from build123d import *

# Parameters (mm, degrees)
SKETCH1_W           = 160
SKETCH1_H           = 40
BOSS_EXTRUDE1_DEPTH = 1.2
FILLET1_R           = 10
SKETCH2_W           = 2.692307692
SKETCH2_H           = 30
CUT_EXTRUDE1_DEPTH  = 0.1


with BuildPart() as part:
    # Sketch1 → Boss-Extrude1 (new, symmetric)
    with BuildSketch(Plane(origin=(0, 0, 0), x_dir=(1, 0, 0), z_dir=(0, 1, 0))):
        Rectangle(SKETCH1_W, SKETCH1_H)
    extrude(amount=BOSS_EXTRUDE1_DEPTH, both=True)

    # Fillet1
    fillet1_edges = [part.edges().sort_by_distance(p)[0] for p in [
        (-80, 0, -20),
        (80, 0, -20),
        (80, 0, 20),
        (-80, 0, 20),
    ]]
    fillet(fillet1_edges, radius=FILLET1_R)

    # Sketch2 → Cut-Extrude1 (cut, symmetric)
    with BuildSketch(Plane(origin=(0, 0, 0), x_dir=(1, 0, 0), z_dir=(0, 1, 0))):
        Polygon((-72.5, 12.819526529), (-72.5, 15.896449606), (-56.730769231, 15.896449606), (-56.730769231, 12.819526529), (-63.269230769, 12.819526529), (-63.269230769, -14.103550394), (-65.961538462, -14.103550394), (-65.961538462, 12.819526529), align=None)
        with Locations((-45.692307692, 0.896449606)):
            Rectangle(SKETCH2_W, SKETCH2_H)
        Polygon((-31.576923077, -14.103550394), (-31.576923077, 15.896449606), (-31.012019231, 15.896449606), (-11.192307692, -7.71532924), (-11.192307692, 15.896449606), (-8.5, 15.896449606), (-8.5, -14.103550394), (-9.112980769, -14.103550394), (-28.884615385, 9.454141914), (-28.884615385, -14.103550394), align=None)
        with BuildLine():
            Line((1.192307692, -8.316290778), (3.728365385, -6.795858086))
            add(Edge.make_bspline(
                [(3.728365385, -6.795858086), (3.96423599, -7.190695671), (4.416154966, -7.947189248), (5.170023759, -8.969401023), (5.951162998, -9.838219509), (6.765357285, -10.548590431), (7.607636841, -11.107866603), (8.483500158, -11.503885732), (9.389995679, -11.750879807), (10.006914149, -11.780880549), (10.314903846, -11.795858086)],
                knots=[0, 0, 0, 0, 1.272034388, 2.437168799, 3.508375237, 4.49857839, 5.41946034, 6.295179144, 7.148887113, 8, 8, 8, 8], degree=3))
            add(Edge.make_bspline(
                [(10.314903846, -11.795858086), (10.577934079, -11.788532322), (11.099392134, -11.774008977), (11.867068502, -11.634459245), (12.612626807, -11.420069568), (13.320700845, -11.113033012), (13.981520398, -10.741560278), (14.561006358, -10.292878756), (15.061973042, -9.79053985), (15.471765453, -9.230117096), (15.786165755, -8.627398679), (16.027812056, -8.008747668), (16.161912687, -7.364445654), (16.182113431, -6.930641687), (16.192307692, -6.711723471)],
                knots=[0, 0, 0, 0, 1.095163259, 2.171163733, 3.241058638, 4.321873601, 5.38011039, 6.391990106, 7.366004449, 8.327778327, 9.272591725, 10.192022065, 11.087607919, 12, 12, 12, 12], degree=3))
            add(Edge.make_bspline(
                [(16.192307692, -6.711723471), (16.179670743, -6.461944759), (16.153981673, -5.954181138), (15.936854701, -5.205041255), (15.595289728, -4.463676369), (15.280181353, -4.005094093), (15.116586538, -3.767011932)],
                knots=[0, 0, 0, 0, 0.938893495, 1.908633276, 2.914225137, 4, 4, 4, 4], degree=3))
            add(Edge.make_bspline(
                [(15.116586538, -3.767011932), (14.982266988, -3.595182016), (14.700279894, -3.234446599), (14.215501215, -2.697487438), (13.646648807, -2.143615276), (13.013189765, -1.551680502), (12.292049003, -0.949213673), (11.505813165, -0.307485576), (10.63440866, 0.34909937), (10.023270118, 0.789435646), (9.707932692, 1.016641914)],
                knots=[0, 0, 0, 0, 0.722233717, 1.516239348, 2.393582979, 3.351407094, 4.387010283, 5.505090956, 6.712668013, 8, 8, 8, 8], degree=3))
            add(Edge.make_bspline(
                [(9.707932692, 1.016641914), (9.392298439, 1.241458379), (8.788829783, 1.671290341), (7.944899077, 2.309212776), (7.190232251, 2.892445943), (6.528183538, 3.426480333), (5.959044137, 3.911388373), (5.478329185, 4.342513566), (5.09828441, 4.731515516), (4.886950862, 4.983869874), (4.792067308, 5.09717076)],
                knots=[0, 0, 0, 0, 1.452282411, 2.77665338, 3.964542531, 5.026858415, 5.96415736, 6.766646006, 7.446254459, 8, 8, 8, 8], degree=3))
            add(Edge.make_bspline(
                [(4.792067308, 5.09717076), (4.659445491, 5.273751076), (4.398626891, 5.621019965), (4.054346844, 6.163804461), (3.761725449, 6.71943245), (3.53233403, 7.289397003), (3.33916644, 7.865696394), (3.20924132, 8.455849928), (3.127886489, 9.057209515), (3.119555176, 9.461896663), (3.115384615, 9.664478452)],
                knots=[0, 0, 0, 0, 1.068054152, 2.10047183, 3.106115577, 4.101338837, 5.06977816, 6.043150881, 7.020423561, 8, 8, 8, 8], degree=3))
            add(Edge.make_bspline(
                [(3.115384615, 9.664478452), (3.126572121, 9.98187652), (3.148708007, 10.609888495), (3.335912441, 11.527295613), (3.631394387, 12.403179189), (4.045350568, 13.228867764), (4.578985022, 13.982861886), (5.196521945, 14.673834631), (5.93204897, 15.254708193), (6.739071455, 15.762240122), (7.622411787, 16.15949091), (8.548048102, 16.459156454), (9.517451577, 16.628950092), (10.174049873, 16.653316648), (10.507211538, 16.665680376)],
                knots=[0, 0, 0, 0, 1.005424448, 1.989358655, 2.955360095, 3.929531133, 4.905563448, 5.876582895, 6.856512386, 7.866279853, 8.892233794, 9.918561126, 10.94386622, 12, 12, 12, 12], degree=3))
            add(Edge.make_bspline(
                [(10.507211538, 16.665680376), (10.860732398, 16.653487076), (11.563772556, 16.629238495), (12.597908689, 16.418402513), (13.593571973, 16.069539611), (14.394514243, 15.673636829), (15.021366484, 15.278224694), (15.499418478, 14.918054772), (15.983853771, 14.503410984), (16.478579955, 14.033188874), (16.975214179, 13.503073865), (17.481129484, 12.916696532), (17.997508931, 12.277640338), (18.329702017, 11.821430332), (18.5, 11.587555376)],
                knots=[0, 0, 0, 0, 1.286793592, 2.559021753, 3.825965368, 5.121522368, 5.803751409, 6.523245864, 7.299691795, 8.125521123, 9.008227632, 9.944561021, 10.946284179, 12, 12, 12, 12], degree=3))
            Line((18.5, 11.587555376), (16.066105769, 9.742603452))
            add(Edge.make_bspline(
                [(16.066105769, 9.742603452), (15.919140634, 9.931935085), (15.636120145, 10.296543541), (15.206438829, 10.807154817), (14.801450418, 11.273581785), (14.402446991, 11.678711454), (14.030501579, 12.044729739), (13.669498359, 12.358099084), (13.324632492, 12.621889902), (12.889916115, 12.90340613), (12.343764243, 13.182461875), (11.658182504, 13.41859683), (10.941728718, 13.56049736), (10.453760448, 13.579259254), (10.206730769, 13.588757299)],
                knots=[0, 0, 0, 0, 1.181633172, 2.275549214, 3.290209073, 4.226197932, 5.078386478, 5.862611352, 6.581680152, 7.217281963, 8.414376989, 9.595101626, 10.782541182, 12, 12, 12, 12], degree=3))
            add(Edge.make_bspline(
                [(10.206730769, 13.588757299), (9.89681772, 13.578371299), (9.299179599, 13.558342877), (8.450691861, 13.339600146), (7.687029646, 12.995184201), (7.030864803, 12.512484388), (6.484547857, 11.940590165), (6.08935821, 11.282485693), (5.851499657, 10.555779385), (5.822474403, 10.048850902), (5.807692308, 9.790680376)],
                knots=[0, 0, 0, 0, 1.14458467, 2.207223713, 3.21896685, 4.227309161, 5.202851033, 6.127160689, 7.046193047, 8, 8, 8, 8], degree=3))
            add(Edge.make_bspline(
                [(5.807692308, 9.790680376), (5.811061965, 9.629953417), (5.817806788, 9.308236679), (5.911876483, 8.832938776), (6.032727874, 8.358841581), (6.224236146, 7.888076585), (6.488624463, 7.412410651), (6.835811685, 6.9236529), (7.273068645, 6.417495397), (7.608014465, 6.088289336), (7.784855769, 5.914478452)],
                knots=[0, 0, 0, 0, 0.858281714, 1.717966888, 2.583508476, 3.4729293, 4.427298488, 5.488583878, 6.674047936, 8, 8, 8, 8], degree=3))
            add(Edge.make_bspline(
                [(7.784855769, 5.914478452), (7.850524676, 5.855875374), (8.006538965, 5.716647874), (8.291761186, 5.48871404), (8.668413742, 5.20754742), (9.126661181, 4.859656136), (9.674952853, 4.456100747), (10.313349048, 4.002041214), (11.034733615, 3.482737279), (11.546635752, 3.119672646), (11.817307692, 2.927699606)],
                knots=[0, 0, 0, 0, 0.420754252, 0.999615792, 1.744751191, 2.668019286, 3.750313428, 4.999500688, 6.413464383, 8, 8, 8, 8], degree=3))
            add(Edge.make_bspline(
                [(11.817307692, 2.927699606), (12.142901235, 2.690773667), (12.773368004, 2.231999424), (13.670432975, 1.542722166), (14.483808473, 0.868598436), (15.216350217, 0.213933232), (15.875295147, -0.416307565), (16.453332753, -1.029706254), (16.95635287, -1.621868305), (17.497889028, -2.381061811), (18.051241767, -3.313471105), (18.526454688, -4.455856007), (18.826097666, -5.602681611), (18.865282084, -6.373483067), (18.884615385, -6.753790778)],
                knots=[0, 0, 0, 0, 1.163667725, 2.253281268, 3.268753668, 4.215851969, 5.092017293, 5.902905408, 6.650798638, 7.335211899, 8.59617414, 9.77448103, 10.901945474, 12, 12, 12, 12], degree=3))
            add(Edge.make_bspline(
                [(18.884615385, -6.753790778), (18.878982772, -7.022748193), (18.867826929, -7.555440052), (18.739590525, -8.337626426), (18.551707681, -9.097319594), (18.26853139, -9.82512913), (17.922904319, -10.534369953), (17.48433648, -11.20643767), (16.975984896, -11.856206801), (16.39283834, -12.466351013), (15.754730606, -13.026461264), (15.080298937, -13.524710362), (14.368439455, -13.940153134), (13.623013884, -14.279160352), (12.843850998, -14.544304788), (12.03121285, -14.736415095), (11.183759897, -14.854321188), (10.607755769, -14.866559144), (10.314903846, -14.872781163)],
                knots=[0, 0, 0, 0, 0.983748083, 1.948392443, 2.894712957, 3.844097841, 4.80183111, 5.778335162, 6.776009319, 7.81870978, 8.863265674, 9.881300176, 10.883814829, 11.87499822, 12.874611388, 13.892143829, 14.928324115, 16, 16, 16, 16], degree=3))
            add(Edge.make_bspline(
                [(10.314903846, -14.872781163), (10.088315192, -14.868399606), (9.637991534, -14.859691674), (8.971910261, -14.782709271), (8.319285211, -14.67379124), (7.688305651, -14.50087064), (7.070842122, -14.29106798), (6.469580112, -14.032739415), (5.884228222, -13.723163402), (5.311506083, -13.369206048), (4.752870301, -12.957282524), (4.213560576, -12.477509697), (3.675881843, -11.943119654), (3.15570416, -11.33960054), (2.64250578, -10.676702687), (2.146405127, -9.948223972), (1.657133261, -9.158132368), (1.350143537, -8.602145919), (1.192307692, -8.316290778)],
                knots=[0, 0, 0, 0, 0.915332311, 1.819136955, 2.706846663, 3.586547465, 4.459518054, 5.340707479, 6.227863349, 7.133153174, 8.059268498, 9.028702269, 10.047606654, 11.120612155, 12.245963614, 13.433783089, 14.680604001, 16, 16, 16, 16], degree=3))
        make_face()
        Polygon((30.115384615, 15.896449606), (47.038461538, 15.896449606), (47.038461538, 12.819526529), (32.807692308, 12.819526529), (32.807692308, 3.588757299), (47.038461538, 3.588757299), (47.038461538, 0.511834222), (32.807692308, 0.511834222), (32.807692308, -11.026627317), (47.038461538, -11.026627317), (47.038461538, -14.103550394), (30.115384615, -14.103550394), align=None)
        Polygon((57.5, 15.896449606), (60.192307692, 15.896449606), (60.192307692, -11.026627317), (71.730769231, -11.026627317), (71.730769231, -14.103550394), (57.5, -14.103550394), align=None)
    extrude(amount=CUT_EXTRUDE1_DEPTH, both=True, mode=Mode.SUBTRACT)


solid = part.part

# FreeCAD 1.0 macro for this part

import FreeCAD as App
import Part
import Sketcher
Q = App.Units.Quantity


def edges_at(feature, points):
    """Names of the edges that pass closest to the given points."""
    edges = feature.Shape.Edges
    near = lambda p: min(range(len(edges)), key=lambda i: edges[i].distToShape(Part.Vertex(*p))[0])
    return sorted({f"Edge{near(p) + 1}" for p in points})


def add_polygon(sketch, points):
    """Adds a closed chain of lines whose ends are joined by coincident constraints."""
    first, n = sketch.GeometryCount, len(points)
    for a, b in zip(points, points[1:] + points[:1]):
        sketch.addGeometry(Part.LineSegment(App.Vector(*a, 0), App.Vector(*b, 0)), False)
    for i in range(n):
        sketch.addConstraint(Sketcher.Constraint("Coincident", first + i, 2, first + (i + 1) % n, 1))

doc = App.newDocument("Part")
body = doc.addObject("PartDesign::Body", "Body")

sketch1 = body.newObject("Sketcher::SketchObject", "Sketch")
sketch1.AttachmentSupport = (doc.getObject("XZ_Plane"), [""])
sketch1.MapMode = "FlatFace"
add_polygon(sketch1, [(-80, -20), (-80, 20), (80, 20), (80, -20)])
sketch1.addConstraint(Sketcher.Constraint("Vertical", 0))
sketch1.addConstraint(Sketcher.Constraint("Horizontal", 1))
sketch1.addConstraint(Sketcher.Constraint("Vertical", 2))
sketch1.addConstraint(Sketcher.Constraint("Horizontal", 3))
sketch1.addConstraint(Sketcher.Constraint("Symmetric", 0, 2, 2, 2, -1, 1))
sketch1.addConstraint(Sketcher.Constraint("DistanceX", 1, 1, 1, 2, Q("160 mm")))
sketch1.addConstraint(Sketcher.Constraint("DistanceY", 0, 1, 0, 2, Q("40 mm")))
pad1 = body.newObject("PartDesign::Pad", "Pad")
pad1.Profile = sketch1
pad1.Length = 2.4
pad1.Midplane = True
doc.recompute()

fillet = body.newObject("PartDesign::Fillet", "Fillet")
fillet.Base = (pad1, edges_at(pad1, [
    (-80, 0, -20),
    (80, 0, -20),
    (80, 0, 20),
    (-80, 0, 20),
]))
fillet.Radius = 10

sketch2 = body.newObject("Sketcher::SketchObject", "Sketch001")
sketch2.AttachmentSupport = (doc.getObject("XZ_Plane"), [""])
sketch2.MapMode = "FlatFace"
add_polygon(sketch2, [(-72.5, -15.89645), (-72.5, -12.819527), (-65.961538, -12.819527), (-65.961538, 14.10355), (-63.269231, 14.10355), (-63.269231, -12.819527), (-56.730769, -12.819527), (-56.730769, -15.89645)])
add_polygon(sketch2, [(-47.038462, -15.89645), (-47.038462, 14.10355), (-44.346154, 14.10355), (-44.346154, -15.89645)])
add_polygon(sketch2, [(-31.576923, -15.89645), (-31.576923, 14.10355), (-28.884615, 14.10355), (-28.884615, -9.454142), (-9.112981, 14.10355), (-8.5, 14.10355), (-8.5, -15.89645), (-11.192308, -15.89645), (-11.192308, 7.715329), (-31.012019, -15.89645)])
sketch2.addGeometry(Part.LineSegment(App.Vector(3.728365, 6.795858, 0), App.Vector(1.192308, 8.316291, 0)), False)
sketch2.addGeometry(Part.BSplineCurve([App.Vector(10.314904, 14.872781, 0), App.Vector(10.088315, 14.8684, 0), App.Vector(9.637992, 14.859692, 0), App.Vector(8.97191, 14.782709, 0), App.Vector(8.319285, 14.673791, 0), App.Vector(7.688306, 14.500871, 0), App.Vector(7.070842, 14.291068, 0), App.Vector(6.46958, 14.032739, 0), App.Vector(5.884228, 13.723163, 0), App.Vector(5.311506, 13.369206, 0), App.Vector(4.75287, 12.957283, 0), App.Vector(4.213561, 12.47751, 0), App.Vector(3.675882, 11.94312, 0), App.Vector(3.155704, 11.339601, 0), App.Vector(2.642506, 10.676703, 0), App.Vector(2.146405, 9.948224, 0), App.Vector(1.657133, 9.158132, 0), App.Vector(1.350144, 8.602146, 0), App.Vector(1.192308, 8.316291, 0)], [4, 1, 1, 1, 1, 1, 1, 1, 1, 1, 1, 1, 1, 1, 1, 1, 4], [0, 0.915332311, 1.819136955, 2.706846663, 3.586547465, 4.459518054, 5.340707479, 6.227863349, 7.133153174, 8.059268498, 9.028702269, 10.047606654, 11.120612155, 12.245963614, 13.433783089, 14.680604001, 16], False, 3, [1, 1, 1, 1, 1, 1, 1, 1, 1, 1, 1, 1, 1, 1, 1, 1, 1, 1, 1], False), False)
sketch2.addGeometry(Part.BSplineCurve([App.Vector(18.884615, 6.753791, 0), App.Vector(18.878983, 7.022748, 0), App.Vector(18.867827, 7.55544, 0), App.Vector(18.739591, 8.337626, 0), App.Vector(18.551708, 9.09732, 0), App.Vector(18.268531, 9.825129, 0), App.Vector(17.922904, 10.53437, 0), App.Vector(17.484336, 11.206438, 0), App.Vector(16.975985, 11.856207, 0), App.Vector(16.392838, 12.466351, 0), App.Vector(15.754731, 13.026461, 0), App.Vector(15.080299, 13.52471, 0), App.Vector(14.368439, 13.940153, 0), App.Vector(13.623014, 14.27916, 0), App.Vector(12.843851, 14.544305, 0), App.Vector(12.031213, 14.736415, 0), App.Vector(11.18376, 14.854321, 0), App.Vector(10.607756, 14.866559, 0), App.Vector(10.314904, 14.872781, 0)], [4, 1, 1, 1, 1, 1, 1, 1, 1, 1, 1, 1, 1, 1, 1, 1, 4], [0, 0.983748083, 1.948392443, 2.894712957, 3.844097841, 4.80183111, 5.778335162, 6.776009319, 7.81870978, 8.863265674, 9.881300176, 10.883814829, 11.87499822, 12.874611388, 13.892143829, 14.928324115, 16], False, 3, [1, 1, 1, 1, 1, 1, 1, 1, 1, 1, 1, 1, 1, 1, 1, 1, 1, 1, 1], False), False)
sketch2.addGeometry(Part.BSplineCurve([App.Vector(11.817308, -2.9277, 0), App.Vector(12.142901, -2.690774, 0), App.Vector(12.773368, -2.231999, 0), App.Vector(13.670433, -1.542722, 0), App.Vector(14.483808, -0.868598, 0), App.Vector(15.21635, -0.213933, 0), App.Vector(15.875295, 0.416308, 0), App.Vector(16.453333, 1.029706, 0), App.Vector(16.956353, 1.621868, 0), App.Vector(17.497889, 2.381062, 0), App.Vector(18.051242, 3.313471, 0), App.Vector(18.526455, 4.455856, 0), App.Vector(18.826098, 5.602682, 0), App.Vector(18.865282, 6.373483, 0), App.Vector(18.884615, 6.753791, 0)], [4, 1, 1, 1, 1, 1, 1, 1, 1, 1, 1, 1, 4], [0, 1.163667725, 2.253281268, 3.268753668, 4.215851969, 5.092017293, 5.902905408, 6.650798638, 7.335211899, 8.59617414, 9.77448103, 10.901945474, 12], False, 3, [1, 1, 1, 1, 1, 1, 1, 1, 1, 1, 1, 1, 1, 1, 1], False), False)
sketch2.addGeometry(Part.BSplineCurve([App.Vector(7.784856, -5.914478, 0), App.Vector(7.850525, -5.855875, 0), App.Vector(8.006539, -5.716648, 0), App.Vector(8.291761, -5.488714, 0), App.Vector(8.668414, -5.207547, 0), App.Vector(9.126661, -4.859656, 0), App.Vector(9.674953, -4.456101, 0), App.Vector(10.313349, -4.002041, 0), App.Vector(11.034734, -3.482737, 0), App.Vector(11.546636, -3.119673, 0), App.Vector(11.817308, -2.9277, 0)], [4, 1, 1, 1, 1, 1, 1, 1, 4], [0, 0.420754252, 0.999615792, 1.744751191, 2.668019286, 3.750313428, 4.999500688, 6.413464383, 8], False, 3, [1, 1, 1, 1, 1, 1, 1, 1, 1, 1, 1], False), False)
sketch2.addGeometry(Part.BSplineCurve([App.Vector(5.807692, -9.79068, 0), App.Vector(5.811062, -9.629953, 0), App.Vector(5.817807, -9.308237, 0), App.Vector(5.911876, -8.832939, 0), App.Vector(6.032728, -8.358842, 0), App.Vector(6.224236, -7.888077, 0), App.Vector(6.488624, -7.412411, 0), App.Vector(6.835812, -6.923653, 0), App.Vector(7.273069, -6.417495, 0), App.Vector(7.608014, -6.088289, 0), App.Vector(7.784856, -5.914478, 0)], [4, 1, 1, 1, 1, 1, 1, 1, 4], [0, 0.858281714, 1.717966888, 2.583508476, 3.4729293, 4.427298488, 5.488583878, 6.674047936, 8], False, 3, [1, 1, 1, 1, 1, 1, 1, 1, 1, 1, 1], False), False)
sketch2.addGeometry(Part.BSplineCurve([App.Vector(10.206731, -13.588757, 0), App.Vector(9.896818, -13.578371, 0), App.Vector(9.29918, -13.558343, 0), App.Vector(8.450692, -13.3396, 0), App.Vector(7.68703, -12.995184, 0), App.Vector(7.030865, -12.512484, 0), App.Vector(6.484548, -11.94059, 0), App.Vector(6.089358, -11.282486, 0), App.Vector(5.8515, -10.555779, 0), App.Vector(5.822474, -10.048851, 0), App.Vector(5.807692, -9.79068, 0)], [4, 1, 1, 1, 1, 1, 1, 1, 4], [0, 1.14458467, 2.207223713, 3.21896685, 4.227309161, 5.202851033, 6.127160689, 7.046193047, 8], False, 3, [1, 1, 1, 1, 1, 1, 1, 1, 1, 1, 1], False), False)
sketch2.addGeometry(Part.BSplineCurve([App.Vector(16.066106, -9.742603, 0), App.Vector(15.919141, -9.931935, 0), App.Vector(15.63612, -10.296544, 0), App.Vector(15.206439, -10.807155, 0), App.Vector(14.80145, -11.273582, 0), App.Vector(14.402447, -11.678711, 0), App.Vector(14.030502, -12.04473, 0), App.Vector(13.669498, -12.358099, 0), App.Vector(13.324632, -12.62189, 0), App.Vector(12.889916, -12.903406, 0), App.Vector(12.343764, -13.182462, 0), App.Vector(11.658183, -13.418597, 0), App.Vector(10.941729, -13.560497, 0), App.Vector(10.45376, -13.579259, 0), App.Vector(10.206731, -13.588757, 0)], [4, 1, 1, 1, 1, 1, 1, 1, 1, 1, 1, 1, 4], [0, 1.181633172, 2.275549214, 3.290209073, 4.226197932, 5.078386478, 5.862611352, 6.581680152, 7.217281963, 8.414376989, 9.595101626, 10.782541182, 12], False, 3, [1, 1, 1, 1, 1, 1, 1, 1, 1, 1, 1, 1, 1, 1, 1], False), False)
sketch2.addGeometry(Part.LineSegment(App.Vector(16.066106, -9.742603, 0), App.Vector(18.5, -11.587555, 0)), False)
sketch2.addGeometry(Part.BSplineCurve([App.Vector(10.507212, -16.66568, 0), App.Vector(10.860732, -16.653487, 0), App.Vector(11.563773, -16.629238, 0), App.Vector(12.597909, -16.418403, 0), App.Vector(13.593572, -16.06954, 0), App.Vector(14.394514, -15.673637, 0), App.Vector(15.021366, -15.278225, 0), App.Vector(15.499418, -14.918055, 0), App.Vector(15.983854, -14.503411, 0), App.Vector(16.47858, -14.033189, 0), App.Vector(16.975214, -13.503074, 0), App.Vector(17.481129, -12.916697, 0), App.Vector(17.997509, -12.27764, 0), App.Vector(18.329702, -11.82143, 0), App.Vector(18.5, -11.587555, 0)], [4, 1, 1, 1, 1, 1, 1, 1, 1, 1, 1, 1, 4], [0, 1.286793592, 2.559021753, 3.825965368, 5.121522368, 5.803751409, 6.523245864, 7.299691795, 8.125521123, 9.008227632, 9.944561021, 10.946284179, 12], False, 3, [1, 1, 1, 1, 1, 1, 1, 1, 1, 1, 1, 1, 1, 1, 1], False), False)
sketch2.addGeometry(Part.BSplineCurve([App.Vector(3.115385, -9.664478, 0), App.Vector(3.126572, -9.981877, 0), App.Vector(3.148708, -10.609888, 0), App.Vector(3.335912, -11.527296, 0), App.Vector(3.631394, -12.403179, 0), App.Vector(4.045351, -13.228868, 0), App.Vector(4.578985, -13.982862, 0), App.Vector(5.196522, -14.673835, 0), App.Vector(5.932049, -15.254708, 0), App.Vector(6.739071, -15.76224, 0), App.Vector(7.622412, -16.159491, 0), App.Vector(8.548048, -16.459156, 0), App.Vector(9.517452, -16.62895, 0), App.Vector(10.17405, -16.653317, 0), App.Vector(10.507212, -16.66568, 0)], [4, 1, 1, 1, 1, 1, 1, 1, 1, 1, 1, 1, 4], [0, 1.005424448, 1.989358655, 2.955360095, 3.929531133, 4.905563448, 5.876582895, 6.856512386, 7.866279853, 8.892233794, 9.918561126, 10.94386622, 12], False, 3, [1, 1, 1, 1, 1, 1, 1, 1, 1, 1, 1, 1, 1, 1, 1], False), False)
sketch2.addGeometry(Part.BSplineCurve([App.Vector(4.792067, -5.097171, 0), App.Vector(4.659445, -5.273751, 0), App.Vector(4.398627, -5.62102, 0), App.Vector(4.054347, -6.163804, 0), App.Vector(3.761725, -6.719432, 0), App.Vector(3.532334, -7.289397, 0), App.Vector(3.339166, -7.865696, 0), App.Vector(3.209241, -8.45585, 0), App.Vector(3.127886, -9.05721, 0), App.Vector(3.119555, -9.461897, 0), App.Vector(3.115385, -9.664478, 0)], [4, 1, 1, 1, 1, 1, 1, 1, 4], [0, 1.068054152, 2.10047183, 3.106115577, 4.101338837, 5.06977816, 6.043150881, 7.020423561, 8], False, 3, [1, 1, 1, 1, 1, 1, 1, 1, 1, 1, 1], False), False)
sketch2.addGeometry(Part.BSplineCurve([App.Vector(9.707933, -1.016642, 0), App.Vector(9.392298, -1.241458, 0), App.Vector(8.78883, -1.67129, 0), App.Vector(7.944899, -2.309213, 0), App.Vector(7.190232, -2.892446, 0), App.Vector(6.528184, -3.42648, 0), App.Vector(5.959044, -3.911388, 0), App.Vector(5.478329, -4.342514, 0), App.Vector(5.098284, -4.731516, 0), App.Vector(4.886951, -4.98387, 0), App.Vector(4.792067, -5.097171, 0)], [4, 1, 1, 1, 1, 1, 1, 1, 4], [0, 1.452282411, 2.77665338, 3.964542531, 5.026858415, 5.96415736, 6.766646006, 7.446254459, 8], False, 3, [1, 1, 1, 1, 1, 1, 1, 1, 1, 1, 1], False), False)
sketch2.addGeometry(Part.BSplineCurve([App.Vector(15.116587, 3.767012, 0), App.Vector(14.982267, 3.595182, 0), App.Vector(14.70028, 3.234447, 0), App.Vector(14.215501, 2.697487, 0), App.Vector(13.646649, 2.143615, 0), App.Vector(13.01319, 1.551681, 0), App.Vector(12.292049, 0.949214, 0), App.Vector(11.505813, 0.307486, 0), App.Vector(10.634409, -0.349099, 0), App.Vector(10.02327, -0.789436, 0), App.Vector(9.707933, -1.016642, 0)], [4, 1, 1, 1, 1, 1, 1, 1, 4], [0, 0.722233717, 1.516239348, 2.393582979, 3.351407094, 4.387010283, 5.505090956, 6.712668013, 8], False, 3, [1, 1, 1, 1, 1, 1, 1, 1, 1, 1, 1], False), False)
sketch2.addGeometry(Part.BSplineCurve([App.Vector(16.192308, 6.711723, 0), App.Vector(16.179671, 6.461945, 0), App.Vector(16.153982, 5.954181, 0), App.Vector(15.936855, 5.205041, 0), App.Vector(15.59529, 4.463676, 0), App.Vector(15.280181, 4.005094, 0), App.Vector(15.116587, 3.767012, 0)], [4, 1, 1, 1, 4], [0, 0.938893495, 1.908633276, 2.914225137, 4], False, 3, [1, 1, 1, 1, 1, 1, 1], False), False)
sketch2.addGeometry(Part.BSplineCurve([App.Vector(10.314904, 11.795858, 0), App.Vector(10.577934, 11.788532, 0), App.Vector(11.099392, 11.774009, 0), App.Vector(11.867069, 11.634459, 0), App.Vector(12.612627, 11.42007, 0), App.Vector(13.320701, 11.113033, 0), App.Vector(13.98152, 10.74156, 0), App.Vector(14.561006, 10.292879, 0), App.Vector(15.061973, 9.79054, 0), App.Vector(15.471765, 9.230117, 0), App.Vector(15.786166, 8.627399, 0), App.Vector(16.027812, 8.008748, 0), App.Vector(16.161913, 7.364446, 0), App.Vector(16.182113, 6.930642, 0), App.Vector(16.192308, 6.711723, 0)], [4, 1, 1, 1, 1, 1, 1, 1, 1, 1, 1, 1, 4], [0, 1.095163259, 2.171163733, 3.241058638, 4.321873601, 5.38011039, 6.391990106, 7.366004449, 8.327778327, 9.272591725, 10.192022065, 11.087607919, 12], False, 3, [1, 1, 1, 1, 1, 1, 1, 1, 1, 1, 1, 1, 1, 1, 1], False), False)
sketch2.addGeometry(Part.BSplineCurve([App.Vector(3.728365, 6.795858, 0), App.Vector(3.964236, 7.190696, 0), App.Vector(4.416155, 7.947189, 0), App.Vector(5.170024, 8.969401, 0), App.Vector(5.951163, 9.83822, 0), App.Vector(6.765357, 10.54859, 0), App.Vector(7.607637, 11.107867, 0), App.Vector(8.4835, 11.503886, 0), App.Vector(9.389996, 11.75088, 0), App.Vector(10.006914, 11.780881, 0), App.Vector(10.314904, 11.795858, 0)], [4, 1, 1, 1, 1, 1, 1, 1, 4], [0, 1.272034388, 2.437168799, 3.508375237, 4.49857839, 5.41946034, 6.295179144, 7.148887113, 8], False, 3, [1, 1, 1, 1, 1, 1, 1, 1, 1, 1, 1], False), False)
add_polygon(sketch2, [(47.038462, -15.89645), (30.115385, -15.89645), (30.115385, 14.10355), (47.038462, 14.10355), (47.038462, 11.026627), (32.807692, 11.026627), (32.807692, -0.511834), (47.038462, -0.511834), (47.038462, -3.588757), (32.807692, -3.588757), (32.807692, -12.819527), (47.038462, -12.819527)])
add_polygon(sketch2, [(60.192308, -15.89645), (57.5, -15.89645), (57.5, 14.10355), (71.730769, 14.10355), (71.730769, 11.026627), (60.192308, 11.026627)])
sketch2.addConstraint(Sketcher.Constraint("Block", 23))
sketch2.addConstraint(Sketcher.Constraint("Block", 24))
sketch2.addConstraint(Sketcher.Constraint("Block", 25))
sketch2.addConstraint(Sketcher.Constraint("Block", 26))
sketch2.addConstraint(Sketcher.Constraint("Block", 27))
sketch2.addConstraint(Sketcher.Constraint("Block", 28))
sketch2.addConstraint(Sketcher.Constraint("Block", 29))
sketch2.addConstraint(Sketcher.Constraint("Block", 31))
sketch2.addConstraint(Sketcher.Constraint("Block", 32))
sketch2.addConstraint(Sketcher.Constraint("Block", 33))
sketch2.addConstraint(Sketcher.Constraint("Block", 34))
sketch2.addConstraint(Sketcher.Constraint("Block", 35))
sketch2.addConstraint(Sketcher.Constraint("Block", 36))
sketch2.addConstraint(Sketcher.Constraint("Block", 37))
sketch2.addConstraint(Sketcher.Constraint("Block", 38))
sketch2.addConstraint(Sketcher.Constraint("Coincident", 22, 2, 23, 2))
sketch2.addConstraint(Sketcher.Constraint("Coincident", 29, 1, 30, 1))
sketch2.addConstraint(Sketcher.Constraint("Coincident", 30, 2, 31, 2))
sketch2.addConstraint(Sketcher.Constraint("Coincident", 38, 1, 22, 1))
sketch2.addConstraint(Sketcher.Constraint("Vertical", 0))
sketch2.addConstraint(Sketcher.Constraint("Horizontal", 1))
sketch2.addConstraint(Sketcher.Constraint("Vertical", 2))
sketch2.addConstraint(Sketcher.Constraint("Horizontal", 3))
sketch2.addConstraint(Sketcher.Constraint("Vertical", 4))
sketch2.addConstraint(Sketcher.Constraint("Horizontal", 5))
sketch2.addConstraint(Sketcher.Constraint("Vertical", 6))
sketch2.addConstraint(Sketcher.Constraint("Horizontal", 7))
sketch2.addConstraint(Sketcher.Constraint("Vertical", 8))
sketch2.addConstraint(Sketcher.Constraint("Horizontal", 9))
sketch2.addConstraint(Sketcher.Constraint("Vertical", 10))
sketch2.addConstraint(Sketcher.Constraint("Horizontal", 11))
sketch2.addConstraint(Sketcher.Constraint("Vertical", 12))
sketch2.addConstraint(Sketcher.Constraint("Horizontal", 13))
sketch2.addConstraint(Sketcher.Constraint("Vertical", 14))
sketch2.addConstraint(Sketcher.Constraint("Horizontal", 16))
sketch2.addConstraint(Sketcher.Constraint("Vertical", 17))
sketch2.addConstraint(Sketcher.Constraint("Horizontal", 18))
sketch2.addConstraint(Sketcher.Constraint("Vertical", 19))
sketch2.addConstraint(Sketcher.Constraint("Horizontal", 21))
sketch2.addConstraint(Sketcher.Constraint("Horizontal", 39))
sketch2.addConstraint(Sketcher.Constraint("Vertical", 40))
sketch2.addConstraint(Sketcher.Constraint("Horizontal", 41))
sketch2.addConstraint(Sketcher.Constraint("Vertical", 42))
sketch2.addConstraint(Sketcher.Constraint("Horizontal", 43))
sketch2.addConstraint(Sketcher.Constraint("Vertical", 44))
sketch2.addConstraint(Sketcher.Constraint("Horizontal", 45))
sketch2.addConstraint(Sketcher.Constraint("Vertical", 46))
sketch2.addConstraint(Sketcher.Constraint("Horizontal", 47))
sketch2.addConstraint(Sketcher.Constraint("Vertical", 48))
sketch2.addConstraint(Sketcher.Constraint("Horizontal", 49))
sketch2.addConstraint(Sketcher.Constraint("Vertical", 50))
sketch2.addConstraint(Sketcher.Constraint("Horizontal", 51))
sketch2.addConstraint(Sketcher.Constraint("Vertical", 52))
sketch2.addConstraint(Sketcher.Constraint("Horizontal", 53))
sketch2.addConstraint(Sketcher.Constraint("Vertical", 54))
sketch2.addConstraint(Sketcher.Constraint("Horizontal", 55))
sketch2.addConstraint(Sketcher.Constraint("Vertical", 56))
sketch2.addConstraint(Sketcher.Constraint("Symmetric", 8, 2, 41, 2, -2))
sketch2.addConstraint(Sketcher.Constraint("Symmetric", 11, 2, 50, 2, -2))
sketch2.addConstraint(Sketcher.Constraint("Horizontal", 1, 2, 4, 2))
sketch2.addConstraint(Sketcher.Constraint("Horizontal", 3, 2, 8, 2))
sketch2.addConstraint(Sketcher.Constraint("Horizontal", 7, 2, 10, 2))
sketch2.addConstraint(Sketcher.Constraint("Horizontal", 9, 2, 12, 2))
sketch2.addConstraint(Sketcher.Constraint("Horizontal", 13, 2, 15, 2))
sketch2.addConstraint(Sketcher.Constraint("Horizontal", 11, 2, 17, 2))
sketch2.addConstraint(Sketcher.Constraint("Horizontal", 18, 2, 20, 2))
sketch2.addConstraint(Sketcher.Constraint("Horizontal", 5, 2, 48, 2))
sketch2.addConstraint(Sketcher.Constraint("Horizontal", 50, 2, 51, 2))
sketch2.addConstraint(Sketcher.Constraint("Horizontal", 41, 2, 52, 2))
sketch2.addConstraint(Sketcher.Constraint("Horizontal", 43, 2, 54, 2))
sketch2.addConstraint(Sketcher.Constraint("Vertical", 42, 2, 45, 2))
sketch2.addConstraint(Sketcher.Constraint("Vertical", 44, 2, 47, 2))
sketch2.addConstraint(Sketcher.Constraint("Equal", 1, 5))
sketch2.addConstraint(Sketcher.Constraint("Equal", 3, 9))
sketch2.addConstraint(Sketcher.Constraint("Equal", 11, 13))
sketch2.addConstraint(Sketcher.Constraint("Equal", 13, 18))
sketch2.addConstraint(Sketcher.Constraint("Equal", 18, 51))
sketch2.addConstraint(Sketcher.Constraint("Equal", 49, 53))
sketch2.addConstraint(Sketcher.Constraint("Equal", 6, 42))
sketch2.addConstraint(Sketcher.Constraint("Equal", 55, 44))
sketch2.addConstraint(Sketcher.Constraint("Equal", 42, 46))
sketch2.addConstraint(Sketcher.Constraint("DistanceY", 8, 1, 8, 2, Q("30 mm")))
sketch2.addConstraint(Sketcher.Constraint("DistanceX", 17, 2, 30, 2, Q("27 mm")))
sketch2.addConstraint(Sketcher.Constraint("DistanceX", 0, 2, -1, 1, Q("72.5 mm")))
sketch2.addConstraint(Sketcher.Constraint("DistanceX", -1, 1, 51, 2, Q("57.5 mm")))
sketch2.addConstraint(Sketcher.Constraint("Distance", 15, Q("30.755201 mm")))
sketch2.addConstraint(Sketcher.Constraint("DistanceX", 1, 1, 1, 2, Q("6.538462 mm")))
sketch2.addConstraint(Sketcher.Constraint("DistanceX", 7, 2, 7, 1, Q("15.769231 mm")))
sketch2.addConstraint(Sketcher.Constraint("DistanceX", 16, 1, 16, 2, Q("0.612981 mm")))
sketch2.addConstraint(Sketcher.Constraint("DistanceX", 43, 2, 43, 1, Q("14.230769 mm")))
sketch2.addConstraint(Sketcher.Constraint("DistanceY", 19, 1, 19, 2, Q("23.611779 mm")))
sketch2.addConstraint(Sketcher.Constraint("DistanceY", 48, 2, 48, 1, Q("9.230769 mm")))
sketch2.addConstraint(Sketcher.Constraint("DistanceX", 21, 2, 21, 1, Q("0.564904 mm")))
sketch2.addConstraint(Sketcher.Constraint("DistanceX", 39, 2, 39, 1, Q("16.923077 mm")))
sketch2.addConstraint(Sketcher.Constraint("DistanceY", 14, 2, 14, 1, Q("23.557692 mm")))
sketch2.addConstraint(Sketcher.Constraint("DistanceY", -1, 1, 2, 2, Q("14.10355 mm")))
sketch2.addConstraint(Sketcher.Constraint("DistanceX", 8, 2, -1, 1, Q("47.038462 mm")))
pocket1 = body.newObject("PartDesign::Pocket", "Pocket")
pocket1.Profile = sketch2
pocket1.Length = 0.2
pocket1.Midplane = True

doc.recompute()
